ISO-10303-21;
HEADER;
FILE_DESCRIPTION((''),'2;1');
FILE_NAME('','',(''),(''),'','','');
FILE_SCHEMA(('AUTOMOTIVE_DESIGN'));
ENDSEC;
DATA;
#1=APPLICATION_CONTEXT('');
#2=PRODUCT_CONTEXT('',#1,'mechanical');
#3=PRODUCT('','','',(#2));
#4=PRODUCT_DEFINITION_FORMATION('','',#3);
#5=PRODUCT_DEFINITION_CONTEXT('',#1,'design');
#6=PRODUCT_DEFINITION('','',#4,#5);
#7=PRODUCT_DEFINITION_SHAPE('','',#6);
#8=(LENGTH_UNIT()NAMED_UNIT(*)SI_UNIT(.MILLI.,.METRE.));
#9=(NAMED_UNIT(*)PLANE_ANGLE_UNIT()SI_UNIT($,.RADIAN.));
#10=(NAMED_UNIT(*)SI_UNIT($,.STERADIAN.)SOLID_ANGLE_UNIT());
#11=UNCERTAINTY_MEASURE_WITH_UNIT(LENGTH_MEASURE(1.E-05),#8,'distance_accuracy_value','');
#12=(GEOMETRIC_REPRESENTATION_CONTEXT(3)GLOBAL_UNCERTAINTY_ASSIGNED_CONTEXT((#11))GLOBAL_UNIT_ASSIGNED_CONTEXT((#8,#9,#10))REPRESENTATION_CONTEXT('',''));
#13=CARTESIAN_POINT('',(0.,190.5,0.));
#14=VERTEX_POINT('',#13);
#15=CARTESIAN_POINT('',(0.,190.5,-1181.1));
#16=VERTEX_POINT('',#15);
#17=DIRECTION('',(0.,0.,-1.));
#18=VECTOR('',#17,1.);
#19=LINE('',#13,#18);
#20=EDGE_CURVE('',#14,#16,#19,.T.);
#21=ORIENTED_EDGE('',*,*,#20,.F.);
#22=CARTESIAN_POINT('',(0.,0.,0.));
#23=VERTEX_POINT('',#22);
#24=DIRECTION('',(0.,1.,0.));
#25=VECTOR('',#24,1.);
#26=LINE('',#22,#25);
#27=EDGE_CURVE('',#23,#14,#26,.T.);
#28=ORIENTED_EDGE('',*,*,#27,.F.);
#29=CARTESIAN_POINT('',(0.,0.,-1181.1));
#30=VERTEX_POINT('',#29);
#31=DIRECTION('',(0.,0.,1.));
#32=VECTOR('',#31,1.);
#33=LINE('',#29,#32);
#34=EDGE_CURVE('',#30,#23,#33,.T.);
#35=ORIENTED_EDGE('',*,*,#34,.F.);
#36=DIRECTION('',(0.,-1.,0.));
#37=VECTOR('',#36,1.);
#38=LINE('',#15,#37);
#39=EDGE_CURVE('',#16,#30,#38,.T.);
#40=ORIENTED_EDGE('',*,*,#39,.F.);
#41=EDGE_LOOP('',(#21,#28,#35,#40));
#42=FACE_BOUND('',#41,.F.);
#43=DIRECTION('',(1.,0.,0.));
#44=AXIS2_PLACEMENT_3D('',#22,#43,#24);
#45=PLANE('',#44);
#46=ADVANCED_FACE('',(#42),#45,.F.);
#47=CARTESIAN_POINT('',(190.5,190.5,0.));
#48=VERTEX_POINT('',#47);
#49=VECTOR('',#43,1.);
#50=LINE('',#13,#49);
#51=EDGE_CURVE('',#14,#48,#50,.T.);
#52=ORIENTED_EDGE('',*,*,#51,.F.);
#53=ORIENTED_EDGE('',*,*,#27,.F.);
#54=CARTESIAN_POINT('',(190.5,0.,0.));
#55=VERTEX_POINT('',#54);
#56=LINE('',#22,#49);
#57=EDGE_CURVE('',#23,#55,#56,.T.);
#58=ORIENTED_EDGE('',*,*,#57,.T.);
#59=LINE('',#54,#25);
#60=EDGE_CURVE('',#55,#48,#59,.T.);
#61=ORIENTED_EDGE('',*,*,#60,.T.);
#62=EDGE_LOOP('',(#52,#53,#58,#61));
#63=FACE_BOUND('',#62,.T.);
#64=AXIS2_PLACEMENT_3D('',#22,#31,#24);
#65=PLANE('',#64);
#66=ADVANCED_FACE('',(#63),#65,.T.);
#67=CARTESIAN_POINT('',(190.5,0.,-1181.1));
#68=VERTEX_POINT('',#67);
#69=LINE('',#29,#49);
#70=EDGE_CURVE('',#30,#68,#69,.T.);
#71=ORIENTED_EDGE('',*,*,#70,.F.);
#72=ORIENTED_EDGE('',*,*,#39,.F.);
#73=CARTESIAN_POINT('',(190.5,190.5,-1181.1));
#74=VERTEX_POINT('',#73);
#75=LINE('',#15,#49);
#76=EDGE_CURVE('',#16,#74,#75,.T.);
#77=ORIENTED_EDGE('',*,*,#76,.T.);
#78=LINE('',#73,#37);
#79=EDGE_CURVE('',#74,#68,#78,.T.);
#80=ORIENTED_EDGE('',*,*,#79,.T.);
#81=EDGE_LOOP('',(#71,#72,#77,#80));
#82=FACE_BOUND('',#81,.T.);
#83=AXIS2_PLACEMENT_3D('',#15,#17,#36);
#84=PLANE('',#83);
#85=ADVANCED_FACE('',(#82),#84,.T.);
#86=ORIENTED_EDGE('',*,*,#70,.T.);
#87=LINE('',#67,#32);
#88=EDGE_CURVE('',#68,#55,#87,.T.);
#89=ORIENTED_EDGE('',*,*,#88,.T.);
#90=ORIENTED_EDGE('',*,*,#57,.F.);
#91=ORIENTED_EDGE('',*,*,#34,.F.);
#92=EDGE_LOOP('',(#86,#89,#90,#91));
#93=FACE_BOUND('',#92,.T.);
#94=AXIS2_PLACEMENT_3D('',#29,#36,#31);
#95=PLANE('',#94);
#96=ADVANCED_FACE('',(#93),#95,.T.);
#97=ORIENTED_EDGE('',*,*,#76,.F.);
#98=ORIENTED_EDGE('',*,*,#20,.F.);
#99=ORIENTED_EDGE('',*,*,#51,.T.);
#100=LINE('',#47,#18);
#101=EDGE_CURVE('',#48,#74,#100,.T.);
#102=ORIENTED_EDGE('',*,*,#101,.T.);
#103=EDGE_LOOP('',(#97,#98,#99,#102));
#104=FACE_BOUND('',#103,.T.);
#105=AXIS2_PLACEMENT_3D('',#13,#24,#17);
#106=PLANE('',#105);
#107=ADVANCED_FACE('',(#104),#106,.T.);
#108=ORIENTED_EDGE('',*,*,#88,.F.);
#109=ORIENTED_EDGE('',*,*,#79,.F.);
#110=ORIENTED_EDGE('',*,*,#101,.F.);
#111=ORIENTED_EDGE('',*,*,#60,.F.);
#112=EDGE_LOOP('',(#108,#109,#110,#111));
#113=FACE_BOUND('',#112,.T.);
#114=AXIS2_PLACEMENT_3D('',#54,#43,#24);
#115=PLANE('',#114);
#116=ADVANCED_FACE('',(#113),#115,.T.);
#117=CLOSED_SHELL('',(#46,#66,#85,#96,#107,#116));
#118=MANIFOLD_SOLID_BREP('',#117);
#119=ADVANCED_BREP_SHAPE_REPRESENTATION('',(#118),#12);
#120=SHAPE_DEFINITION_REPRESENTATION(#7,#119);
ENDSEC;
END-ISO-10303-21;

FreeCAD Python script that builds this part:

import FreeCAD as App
import Part
import Sketcher

V = App.Vector
Q = App.Units.Quantity


def add_polygon(sketch, points):
    """Adds a closed chain of lines whose ends are joined by coincident constraints."""
    first, n = sketch.GeometryCount, len(points)
    for a, b in zip(points, points[1:] + points[:1]):
        sketch.addGeometry(Part.LineSegment(App.Vector(*a, 0), App.Vector(*b, 0)), False)
    for i in range(n):
        sketch.addConstraint(Sketcher.Constraint("Coincident", first + i, 2, first + (i + 1) % n, 1))

doc = App.newDocument("Part")
body = doc.addObject("PartDesign::Body", "Body")

# Sketch on YZ plane
sketch1 = body.newObject("Sketcher::SketchObject", "Sketch")
sketch1.AttachmentSupport = (doc.getObject("YZ_Plane"), [""])
sketch1.MapMode = "FlatFace"
add_polygon(sketch1, [(190, 0), (0, 0), (0, -1181), (190, -1181)])  # lines 0-3
sketch1.addConstraint([
    Sketcher.Constraint("Horizontal", 0),
    Sketcher.Constraint("Vertical", 1),
    Sketcher.Constraint("Horizontal", 2),
    Sketcher.Constraint("Vertical", 3),
    Sketcher.Constraint("Coincident", 0, 2, -1, 1),
    Sketcher.Constraint("DistanceX", 0, 2, 0, 1, Q("7.5 in")),
    Sketcher.Constraint("DistanceY", 1, 2, 1, 1, Q("46.5 in")),
])
pad1 = body.newObject("PartDesign::Pad", "Pad")
pad1.Profile = sketch1
pad1.Length = Q("7.5 in")

doc.recompute()
